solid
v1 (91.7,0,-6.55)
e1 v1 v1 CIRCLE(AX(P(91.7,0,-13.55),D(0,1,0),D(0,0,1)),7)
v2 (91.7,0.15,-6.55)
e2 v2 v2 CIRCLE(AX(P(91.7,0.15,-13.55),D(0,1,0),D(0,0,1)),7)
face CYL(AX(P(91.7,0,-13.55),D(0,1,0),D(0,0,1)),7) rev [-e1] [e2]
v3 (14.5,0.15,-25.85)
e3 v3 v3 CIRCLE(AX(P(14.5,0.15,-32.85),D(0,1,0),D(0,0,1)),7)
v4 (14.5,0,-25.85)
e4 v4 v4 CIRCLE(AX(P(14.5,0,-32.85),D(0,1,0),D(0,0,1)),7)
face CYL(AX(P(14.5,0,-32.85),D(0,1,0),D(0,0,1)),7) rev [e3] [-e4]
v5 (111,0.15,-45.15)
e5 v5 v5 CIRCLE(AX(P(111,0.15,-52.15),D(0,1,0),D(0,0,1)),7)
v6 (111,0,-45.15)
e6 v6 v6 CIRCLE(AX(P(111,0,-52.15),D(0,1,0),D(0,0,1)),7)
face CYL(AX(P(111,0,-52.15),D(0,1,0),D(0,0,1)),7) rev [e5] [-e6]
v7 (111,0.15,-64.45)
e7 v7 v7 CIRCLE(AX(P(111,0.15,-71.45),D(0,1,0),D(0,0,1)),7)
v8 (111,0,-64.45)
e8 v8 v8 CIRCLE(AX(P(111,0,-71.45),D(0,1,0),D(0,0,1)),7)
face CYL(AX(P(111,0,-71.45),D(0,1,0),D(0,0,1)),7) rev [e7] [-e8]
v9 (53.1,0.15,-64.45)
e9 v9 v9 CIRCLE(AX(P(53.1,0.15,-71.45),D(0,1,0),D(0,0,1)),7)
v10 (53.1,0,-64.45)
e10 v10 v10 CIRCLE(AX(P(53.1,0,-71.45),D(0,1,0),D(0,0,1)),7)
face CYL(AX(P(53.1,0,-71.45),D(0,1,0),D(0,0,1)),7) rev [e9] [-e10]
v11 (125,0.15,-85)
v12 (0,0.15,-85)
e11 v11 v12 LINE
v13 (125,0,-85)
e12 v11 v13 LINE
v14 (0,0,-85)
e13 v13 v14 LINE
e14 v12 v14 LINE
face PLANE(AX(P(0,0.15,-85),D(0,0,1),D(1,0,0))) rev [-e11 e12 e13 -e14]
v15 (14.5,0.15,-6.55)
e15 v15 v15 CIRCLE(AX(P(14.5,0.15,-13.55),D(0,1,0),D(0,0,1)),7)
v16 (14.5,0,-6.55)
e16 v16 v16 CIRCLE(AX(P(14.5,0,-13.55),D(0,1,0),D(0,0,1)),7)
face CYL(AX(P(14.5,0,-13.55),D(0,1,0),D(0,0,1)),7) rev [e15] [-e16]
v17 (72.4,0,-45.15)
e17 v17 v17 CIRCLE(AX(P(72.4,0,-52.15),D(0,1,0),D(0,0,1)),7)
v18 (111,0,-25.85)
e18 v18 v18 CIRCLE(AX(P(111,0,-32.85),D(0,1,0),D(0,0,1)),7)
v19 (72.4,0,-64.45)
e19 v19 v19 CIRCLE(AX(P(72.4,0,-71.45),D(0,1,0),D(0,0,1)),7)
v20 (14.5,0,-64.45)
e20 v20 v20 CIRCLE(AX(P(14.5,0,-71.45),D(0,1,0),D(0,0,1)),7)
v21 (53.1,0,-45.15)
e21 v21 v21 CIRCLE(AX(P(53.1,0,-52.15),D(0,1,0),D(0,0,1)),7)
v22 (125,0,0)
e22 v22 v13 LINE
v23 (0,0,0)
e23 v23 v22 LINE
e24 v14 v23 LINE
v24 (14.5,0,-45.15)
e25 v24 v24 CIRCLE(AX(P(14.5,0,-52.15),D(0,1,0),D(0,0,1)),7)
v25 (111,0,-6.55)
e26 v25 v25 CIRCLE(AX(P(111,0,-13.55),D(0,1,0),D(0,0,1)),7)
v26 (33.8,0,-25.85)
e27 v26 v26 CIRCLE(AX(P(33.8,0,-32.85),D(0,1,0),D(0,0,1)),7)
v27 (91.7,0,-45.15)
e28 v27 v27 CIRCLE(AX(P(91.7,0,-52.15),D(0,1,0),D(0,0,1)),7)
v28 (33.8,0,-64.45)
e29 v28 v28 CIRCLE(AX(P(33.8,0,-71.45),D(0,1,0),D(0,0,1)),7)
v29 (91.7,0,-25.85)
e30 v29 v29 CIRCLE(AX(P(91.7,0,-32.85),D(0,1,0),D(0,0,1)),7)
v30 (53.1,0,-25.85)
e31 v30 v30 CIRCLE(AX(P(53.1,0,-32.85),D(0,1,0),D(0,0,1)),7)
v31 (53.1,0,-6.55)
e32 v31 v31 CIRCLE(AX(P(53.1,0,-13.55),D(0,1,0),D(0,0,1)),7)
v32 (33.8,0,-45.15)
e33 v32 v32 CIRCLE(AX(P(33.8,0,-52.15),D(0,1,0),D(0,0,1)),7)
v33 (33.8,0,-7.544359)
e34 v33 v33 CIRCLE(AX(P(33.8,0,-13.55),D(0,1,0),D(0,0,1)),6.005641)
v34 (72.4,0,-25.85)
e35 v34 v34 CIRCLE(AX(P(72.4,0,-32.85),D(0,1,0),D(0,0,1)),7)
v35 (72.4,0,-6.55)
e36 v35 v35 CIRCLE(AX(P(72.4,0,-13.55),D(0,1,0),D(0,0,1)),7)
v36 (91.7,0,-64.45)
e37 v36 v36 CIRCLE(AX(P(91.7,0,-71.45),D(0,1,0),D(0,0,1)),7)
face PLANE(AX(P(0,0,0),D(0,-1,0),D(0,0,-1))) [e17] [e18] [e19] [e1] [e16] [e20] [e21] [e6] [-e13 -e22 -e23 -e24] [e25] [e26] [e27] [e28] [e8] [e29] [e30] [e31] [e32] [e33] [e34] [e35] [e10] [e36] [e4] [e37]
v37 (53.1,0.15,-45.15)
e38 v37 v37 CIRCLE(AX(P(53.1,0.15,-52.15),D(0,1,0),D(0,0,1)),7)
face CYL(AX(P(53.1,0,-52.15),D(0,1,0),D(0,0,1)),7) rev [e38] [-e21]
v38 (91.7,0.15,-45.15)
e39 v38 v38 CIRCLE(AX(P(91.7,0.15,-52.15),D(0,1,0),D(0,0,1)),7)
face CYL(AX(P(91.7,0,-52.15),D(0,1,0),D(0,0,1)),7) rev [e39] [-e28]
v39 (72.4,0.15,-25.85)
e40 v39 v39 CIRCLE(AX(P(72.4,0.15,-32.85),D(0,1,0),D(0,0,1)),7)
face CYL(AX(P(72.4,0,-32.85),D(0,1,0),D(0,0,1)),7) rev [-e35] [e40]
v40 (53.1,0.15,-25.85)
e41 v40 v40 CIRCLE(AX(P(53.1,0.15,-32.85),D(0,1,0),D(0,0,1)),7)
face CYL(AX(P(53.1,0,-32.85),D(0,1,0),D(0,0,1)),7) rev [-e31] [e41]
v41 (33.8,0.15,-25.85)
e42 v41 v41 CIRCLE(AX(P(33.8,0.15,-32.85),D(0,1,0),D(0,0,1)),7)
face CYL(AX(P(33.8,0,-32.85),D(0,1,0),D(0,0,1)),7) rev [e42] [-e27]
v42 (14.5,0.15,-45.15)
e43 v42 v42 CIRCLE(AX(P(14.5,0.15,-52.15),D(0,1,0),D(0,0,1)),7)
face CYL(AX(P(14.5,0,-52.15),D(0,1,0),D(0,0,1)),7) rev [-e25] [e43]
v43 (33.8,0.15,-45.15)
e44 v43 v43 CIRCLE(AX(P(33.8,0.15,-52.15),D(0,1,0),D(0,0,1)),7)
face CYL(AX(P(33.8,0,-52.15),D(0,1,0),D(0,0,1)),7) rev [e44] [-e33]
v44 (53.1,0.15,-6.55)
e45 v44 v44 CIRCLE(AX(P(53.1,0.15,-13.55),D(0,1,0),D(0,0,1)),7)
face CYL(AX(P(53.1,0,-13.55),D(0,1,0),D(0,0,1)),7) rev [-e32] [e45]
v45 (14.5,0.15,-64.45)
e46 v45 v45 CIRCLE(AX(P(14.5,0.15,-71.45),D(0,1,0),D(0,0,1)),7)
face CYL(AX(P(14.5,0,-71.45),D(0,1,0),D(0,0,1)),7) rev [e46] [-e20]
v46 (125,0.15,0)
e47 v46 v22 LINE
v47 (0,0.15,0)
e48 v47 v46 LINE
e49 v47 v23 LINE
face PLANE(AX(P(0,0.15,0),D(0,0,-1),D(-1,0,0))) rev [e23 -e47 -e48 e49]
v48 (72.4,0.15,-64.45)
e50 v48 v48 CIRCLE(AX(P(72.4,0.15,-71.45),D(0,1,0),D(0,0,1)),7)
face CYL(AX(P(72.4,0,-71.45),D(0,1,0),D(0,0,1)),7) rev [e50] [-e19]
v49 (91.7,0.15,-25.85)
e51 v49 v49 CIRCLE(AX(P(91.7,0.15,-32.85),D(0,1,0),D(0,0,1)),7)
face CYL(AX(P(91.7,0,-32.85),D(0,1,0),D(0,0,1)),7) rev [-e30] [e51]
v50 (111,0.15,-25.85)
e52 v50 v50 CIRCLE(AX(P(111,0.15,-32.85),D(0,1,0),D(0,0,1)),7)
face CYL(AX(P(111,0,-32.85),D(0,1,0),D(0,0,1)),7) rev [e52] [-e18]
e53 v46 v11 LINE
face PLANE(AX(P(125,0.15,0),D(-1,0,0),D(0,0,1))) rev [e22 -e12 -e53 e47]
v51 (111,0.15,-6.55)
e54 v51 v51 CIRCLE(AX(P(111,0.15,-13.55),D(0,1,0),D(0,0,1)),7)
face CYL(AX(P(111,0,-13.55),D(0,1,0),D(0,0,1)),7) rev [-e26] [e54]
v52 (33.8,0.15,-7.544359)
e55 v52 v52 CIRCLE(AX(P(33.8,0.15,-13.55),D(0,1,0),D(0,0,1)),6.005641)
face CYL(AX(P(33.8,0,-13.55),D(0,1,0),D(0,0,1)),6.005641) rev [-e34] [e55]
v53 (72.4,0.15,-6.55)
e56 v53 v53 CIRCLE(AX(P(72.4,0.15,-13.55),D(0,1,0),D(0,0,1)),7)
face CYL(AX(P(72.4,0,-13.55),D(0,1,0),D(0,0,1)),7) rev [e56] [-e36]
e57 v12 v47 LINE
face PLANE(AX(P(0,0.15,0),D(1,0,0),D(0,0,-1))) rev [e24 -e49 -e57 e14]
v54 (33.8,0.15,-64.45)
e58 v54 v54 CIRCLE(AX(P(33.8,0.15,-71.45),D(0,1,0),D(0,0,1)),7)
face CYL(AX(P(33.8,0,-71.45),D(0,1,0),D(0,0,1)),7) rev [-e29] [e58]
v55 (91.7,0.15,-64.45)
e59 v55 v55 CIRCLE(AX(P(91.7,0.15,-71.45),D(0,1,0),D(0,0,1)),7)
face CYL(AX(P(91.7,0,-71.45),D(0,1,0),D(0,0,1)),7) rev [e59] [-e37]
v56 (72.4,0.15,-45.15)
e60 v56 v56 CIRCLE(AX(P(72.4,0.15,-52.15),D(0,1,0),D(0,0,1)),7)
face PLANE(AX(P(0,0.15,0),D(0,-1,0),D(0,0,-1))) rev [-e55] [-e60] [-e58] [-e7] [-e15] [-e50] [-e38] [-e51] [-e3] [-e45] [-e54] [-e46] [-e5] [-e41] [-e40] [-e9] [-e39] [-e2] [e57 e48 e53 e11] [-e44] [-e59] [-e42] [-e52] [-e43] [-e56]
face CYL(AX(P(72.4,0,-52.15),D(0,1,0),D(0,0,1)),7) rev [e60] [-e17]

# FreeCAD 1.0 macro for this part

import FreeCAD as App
import Part
import Sketcher
from FreeCAD import Vector
Q = App.Units.Quantity


def add_polygon(sketch, points):
    """Adds a closed chain of lines whose ends are joined by coincident constraints."""
    first, n = sketch.GeometryCount, len(points)
    for a, b in zip(points, points[1:] + points[:1]):
        sketch.addGeometry(Part.LineSegment(App.Vector(*a, 0), App.Vector(*b, 0)), False)
    for i in range(n):
        sketch.addConstraint(Sketcher.Constraint("Coincident", first + i, 2, first + (i + 1) % n, 1))

doc = App.newDocument("Part")
body = doc.addObject("PartDesign::Body", "Body")

sketch1 = doc.addObject("Sketcher::SketchObject", "Sketch")
body.addObject(sketch1)
sketch1.AttachmentSupport = (doc.XZ_Plane, [""])
sketch1.MapMode = "FlatFace"
add_polygon(sketch1, [(0, -85), (0, 0), (125, 0), (125, -85)])
sketch1.addConstraint([
    Sketcher.Constraint("Vertical", 0),
    Sketcher.Constraint("Horizontal", 1),
    Sketcher.Constraint("Vertical", 2),
    Sketcher.Constraint("Horizontal", 3),
    Sketcher.Constraint("Coincident", 0, 2, -1, 1),
    Sketcher.Constraint("DistanceX", 1, 1, 1, 2, Q("125 mm")),
    Sketcher.Constraint("DistanceY", 0, 1, 0, 2, Q("85 mm")),
])
pad1 = doc.addObject("PartDesign::Pad", "Pad")
body.addObject(pad1)
pad1.Profile = sketch1
pad1.Length = 0.15
pad1.Reversed = True

sketch2 = doc.addObject("Sketcher::SketchObject", "Sketch001")
body.addObject(sketch2)
sketch2.AttachmentSupport = (doc.XZ_Plane, [""])
sketch2.MapMode = "FlatFace"
sketch2.AttachmentOffset = App.Placement(Vector(0, 0, -0.15), App.Rotation())
sketch2.addGeometry([
    Part.Circle(Vector(14, -14, 0), Vector(0, 0, 1), 7),
    Part.Circle(Vector(14, -33, 0), Vector(0, 0, 1), 7),
    Part.Circle(Vector(14, -52, 0), Vector(0, 0, 1), 7),
    Part.Circle(Vector(14, -71, 0), Vector(0, 0, 1), 7),
    Part.Circle(Vector(34, -71, 0), Vector(0, 0, 1), 7),
    Part.Circle(Vector(53, -71, 0), Vector(0, 0, 1), 7),
    Part.Circle(Vector(72, -71, 0), Vector(0, 0, 1), 7),
    Part.Circle(Vector(92, -71, 0), Vector(0, 0, 1), 7),
    Part.Circle(Vector(111, -71, 0), Vector(0, 0, 1), 7),
    Part.Circle(Vector(34, -52, 0), Vector(0, 0, 1), 7),
    Part.Circle(Vector(34, -33, 0), Vector(0, 0, 1), 7),
    Part.Circle(Vector(53, -52, 0), Vector(0, 0, 1), 7),
    Part.Circle(Vector(53, -33, 0), Vector(0, 0, 1), 7),
    Part.Circle(Vector(72, -52, 0), Vector(0, 0, 1), 7),
    Part.Circle(Vector(92, -52, 0), Vector(0, 0, 1), 7),
    Part.Circle(Vector(111, -52, 0), Vector(0, 0, 1), 7),
    Part.Circle(Vector(72, -33, 0), Vector(0, 0, 1), 7),
    Part.Circle(Vector(92, -33, 0), Vector(0, 0, 1), 7),
    Part.Circle(Vector(111, -33, 0), Vector(0, 0, 1), 7),
    Part.Circle(Vector(34, -14, 0), Vector(0, 0, 1), 6),
    Part.Circle(Vector(53, -14, 0), Vector(0, 0, 1), 7),
    Part.Circle(Vector(72, -14, 0), Vector(0, 0, 1), 7),
    Part.Circle(Vector(92, -14, 0), Vector(0, 0, 1), 7),
    Part.Circle(Vector(111, -14, 0), Vector(0, 0, 1), 7),
], False)
sketch2.addConstraint([
    Sketcher.Constraint("Equal", 0, 1),
    Sketcher.Constraint("Equal", 1, 2),
    Sketcher.Constraint("Equal", 2, 3),
    Sketcher.Constraint("Equal", 3, 4),
    Sketcher.Constraint("Equal", 4, 5),
    Sketcher.Constraint("Equal", 5, 6),
    Sketcher.Constraint("Equal", 6, 7),
    Sketcher.Constraint("Equal", 7, 8),
    Sketcher.Constraint("Equal", 8, 9),
    Sketcher.Constraint("Equal", 9, 10),
    Sketcher.Constraint("Equal", 10, 11),
    Sketcher.Constraint("Equal", 11, 12),
    Sketcher.Constraint("Equal", 12, 13),
    Sketcher.Constraint("Equal", 13, 14),
    Sketcher.Constraint("Equal", 14, 15),
    Sketcher.Constraint("Equal", 15, 16),
    Sketcher.Constraint("Equal", 16, 17),
    Sketcher.Constraint("Equal", 17, 18),
    Sketcher.Constraint("Equal", 18, 20),
    Sketcher.Constraint("Equal", 20, 21),
    Sketcher.Constraint("Equal", 21, 22),
    Sketcher.Constraint("Equal", 22, 23),
    Sketcher.Constraint("Horizontal", 3, 3, 4, 3),
    Sketcher.Constraint("Horizontal", 4, 3, 5, 3),
    Sketcher.Constraint("Horizontal", 5, 3, 6, 3),
    Sketcher.Constraint("Horizontal", 6, 3, 7, 3),
    Sketcher.Constraint("Horizontal", 7, 3, 8, 3),
    Sketcher.Constraint("Horizontal", 2, 3, 9, 3),
    Sketcher.Constraint("Horizontal", 1, 3, 10, 3),
    Sketcher.Constraint("Horizontal", 9, 3, 11, 3),
    Sketcher.Constraint("Horizontal", 10, 3, 12, 3),
    Sketcher.Constraint("Horizontal", 11, 3, 13, 3),
    Sketcher.Constraint("Horizontal", 13, 3, 14, 3),
    Sketcher.Constraint("Horizontal", 14, 3, 15, 3),
    Sketcher.Constraint("Horizontal", 12, 3, 16, 3),
    Sketcher.Constraint("Horizontal", 16, 3, 17, 3),
    Sketcher.Constraint("Horizontal", 17, 3, 18, 3),
    Sketcher.Constraint("Horizontal", 0, 3, 19, 3),
    Sketcher.Constraint("Horizontal", 19, 3, 20, 3),
    Sketcher.Constraint("Horizontal", 20, 3, 21, 3),
    Sketcher.Constraint("Horizontal", 21, 3, 22, 3),
    Sketcher.Constraint("Horizontal", 22, 3, 23, 3),
    Sketcher.Constraint("Vertical", 0, 3, 1, 3),
    Sketcher.Constraint("Vertical", 1, 3, 2, 3),
    Sketcher.Constraint("Vertical", 2, 3, 3, 3),
    Sketcher.Constraint("Vertical", 4, 3, 9, 3),
    Sketcher.Constraint("Vertical", 9, 3, 10, 3),
    Sketcher.Constraint("Vertical", 5, 3, 11, 3),
    Sketcher.Constraint("Vertical", 11, 3, 12, 3),
    Sketcher.Constraint("Vertical", 6, 3, 13, 3),
    Sketcher.Constraint("Vertical", 7, 3, 14, 3),
    Sketcher.Constraint("Vertical", 8, 3, 15, 3),
    Sketcher.Constraint("Vertical", 13, 3, 16, 3),
    Sketcher.Constraint("Vertical", 14, 3, 17, 3),
    Sketcher.Constraint("Vertical", 15, 3, 18, 3),
    Sketcher.Constraint("Vertical", 10, 3, 19, 3),
    Sketcher.Constraint("Vertical", 12, 3, 20, 3),
    Sketcher.Constraint("Vertical", 16, 3, 21, 3),
    Sketcher.Constraint("Vertical", 17, 3, 22, 3),
    Sketcher.Constraint("Vertical", 18, 3, 23, 3),
    Sketcher.Constraint("Diameter", 0, Q("14 mm")),
    Sketcher.Constraint("DistanceX", -1, 1, 8, 3, Q("111 mm")),
    Sketcher.Constraint("DistanceX", -1, 1, 0, 3, Q("14.5 mm")),
    Sketcher.Constraint("DistanceX", -1, 1, 4, 3, Q("33.8 mm")),
    Sketcher.Constraint("DistanceX", -1, 1, 5, 3, Q("53.1 mm")),
    Sketcher.Constraint("DistanceX", -1, 1, 6, 3, Q("72.4 mm")),
    Sketcher.Constraint("DistanceX", -1, 1, 7, 3, Q("91.7 mm")),
    Sketcher.Constraint("DistanceY", 1, 3, 0, 3, Q("19.3 mm")),
    Sketcher.Constraint("DistanceY", 2, 3, 1, 3, Q("19.3 mm")),
    Sketcher.Constraint("DistanceY", 3, 3, 2, 3, Q("19.3 mm")),
    Sketcher.Constraint("DistanceY", 0, 3, -1, 1, Q("13.55 mm")),
    Sketcher.Constraint("Diameter", 19, Q("12.011283 mm")),
])
pocket1 = doc.addObject("PartDesign::Pocket", "Pocket")
body.addObject(pocket1)
pocket1.Profile = sketch2
pocket1.Length = 0.15
pocket1.Reversed = True

doc.recompute()
